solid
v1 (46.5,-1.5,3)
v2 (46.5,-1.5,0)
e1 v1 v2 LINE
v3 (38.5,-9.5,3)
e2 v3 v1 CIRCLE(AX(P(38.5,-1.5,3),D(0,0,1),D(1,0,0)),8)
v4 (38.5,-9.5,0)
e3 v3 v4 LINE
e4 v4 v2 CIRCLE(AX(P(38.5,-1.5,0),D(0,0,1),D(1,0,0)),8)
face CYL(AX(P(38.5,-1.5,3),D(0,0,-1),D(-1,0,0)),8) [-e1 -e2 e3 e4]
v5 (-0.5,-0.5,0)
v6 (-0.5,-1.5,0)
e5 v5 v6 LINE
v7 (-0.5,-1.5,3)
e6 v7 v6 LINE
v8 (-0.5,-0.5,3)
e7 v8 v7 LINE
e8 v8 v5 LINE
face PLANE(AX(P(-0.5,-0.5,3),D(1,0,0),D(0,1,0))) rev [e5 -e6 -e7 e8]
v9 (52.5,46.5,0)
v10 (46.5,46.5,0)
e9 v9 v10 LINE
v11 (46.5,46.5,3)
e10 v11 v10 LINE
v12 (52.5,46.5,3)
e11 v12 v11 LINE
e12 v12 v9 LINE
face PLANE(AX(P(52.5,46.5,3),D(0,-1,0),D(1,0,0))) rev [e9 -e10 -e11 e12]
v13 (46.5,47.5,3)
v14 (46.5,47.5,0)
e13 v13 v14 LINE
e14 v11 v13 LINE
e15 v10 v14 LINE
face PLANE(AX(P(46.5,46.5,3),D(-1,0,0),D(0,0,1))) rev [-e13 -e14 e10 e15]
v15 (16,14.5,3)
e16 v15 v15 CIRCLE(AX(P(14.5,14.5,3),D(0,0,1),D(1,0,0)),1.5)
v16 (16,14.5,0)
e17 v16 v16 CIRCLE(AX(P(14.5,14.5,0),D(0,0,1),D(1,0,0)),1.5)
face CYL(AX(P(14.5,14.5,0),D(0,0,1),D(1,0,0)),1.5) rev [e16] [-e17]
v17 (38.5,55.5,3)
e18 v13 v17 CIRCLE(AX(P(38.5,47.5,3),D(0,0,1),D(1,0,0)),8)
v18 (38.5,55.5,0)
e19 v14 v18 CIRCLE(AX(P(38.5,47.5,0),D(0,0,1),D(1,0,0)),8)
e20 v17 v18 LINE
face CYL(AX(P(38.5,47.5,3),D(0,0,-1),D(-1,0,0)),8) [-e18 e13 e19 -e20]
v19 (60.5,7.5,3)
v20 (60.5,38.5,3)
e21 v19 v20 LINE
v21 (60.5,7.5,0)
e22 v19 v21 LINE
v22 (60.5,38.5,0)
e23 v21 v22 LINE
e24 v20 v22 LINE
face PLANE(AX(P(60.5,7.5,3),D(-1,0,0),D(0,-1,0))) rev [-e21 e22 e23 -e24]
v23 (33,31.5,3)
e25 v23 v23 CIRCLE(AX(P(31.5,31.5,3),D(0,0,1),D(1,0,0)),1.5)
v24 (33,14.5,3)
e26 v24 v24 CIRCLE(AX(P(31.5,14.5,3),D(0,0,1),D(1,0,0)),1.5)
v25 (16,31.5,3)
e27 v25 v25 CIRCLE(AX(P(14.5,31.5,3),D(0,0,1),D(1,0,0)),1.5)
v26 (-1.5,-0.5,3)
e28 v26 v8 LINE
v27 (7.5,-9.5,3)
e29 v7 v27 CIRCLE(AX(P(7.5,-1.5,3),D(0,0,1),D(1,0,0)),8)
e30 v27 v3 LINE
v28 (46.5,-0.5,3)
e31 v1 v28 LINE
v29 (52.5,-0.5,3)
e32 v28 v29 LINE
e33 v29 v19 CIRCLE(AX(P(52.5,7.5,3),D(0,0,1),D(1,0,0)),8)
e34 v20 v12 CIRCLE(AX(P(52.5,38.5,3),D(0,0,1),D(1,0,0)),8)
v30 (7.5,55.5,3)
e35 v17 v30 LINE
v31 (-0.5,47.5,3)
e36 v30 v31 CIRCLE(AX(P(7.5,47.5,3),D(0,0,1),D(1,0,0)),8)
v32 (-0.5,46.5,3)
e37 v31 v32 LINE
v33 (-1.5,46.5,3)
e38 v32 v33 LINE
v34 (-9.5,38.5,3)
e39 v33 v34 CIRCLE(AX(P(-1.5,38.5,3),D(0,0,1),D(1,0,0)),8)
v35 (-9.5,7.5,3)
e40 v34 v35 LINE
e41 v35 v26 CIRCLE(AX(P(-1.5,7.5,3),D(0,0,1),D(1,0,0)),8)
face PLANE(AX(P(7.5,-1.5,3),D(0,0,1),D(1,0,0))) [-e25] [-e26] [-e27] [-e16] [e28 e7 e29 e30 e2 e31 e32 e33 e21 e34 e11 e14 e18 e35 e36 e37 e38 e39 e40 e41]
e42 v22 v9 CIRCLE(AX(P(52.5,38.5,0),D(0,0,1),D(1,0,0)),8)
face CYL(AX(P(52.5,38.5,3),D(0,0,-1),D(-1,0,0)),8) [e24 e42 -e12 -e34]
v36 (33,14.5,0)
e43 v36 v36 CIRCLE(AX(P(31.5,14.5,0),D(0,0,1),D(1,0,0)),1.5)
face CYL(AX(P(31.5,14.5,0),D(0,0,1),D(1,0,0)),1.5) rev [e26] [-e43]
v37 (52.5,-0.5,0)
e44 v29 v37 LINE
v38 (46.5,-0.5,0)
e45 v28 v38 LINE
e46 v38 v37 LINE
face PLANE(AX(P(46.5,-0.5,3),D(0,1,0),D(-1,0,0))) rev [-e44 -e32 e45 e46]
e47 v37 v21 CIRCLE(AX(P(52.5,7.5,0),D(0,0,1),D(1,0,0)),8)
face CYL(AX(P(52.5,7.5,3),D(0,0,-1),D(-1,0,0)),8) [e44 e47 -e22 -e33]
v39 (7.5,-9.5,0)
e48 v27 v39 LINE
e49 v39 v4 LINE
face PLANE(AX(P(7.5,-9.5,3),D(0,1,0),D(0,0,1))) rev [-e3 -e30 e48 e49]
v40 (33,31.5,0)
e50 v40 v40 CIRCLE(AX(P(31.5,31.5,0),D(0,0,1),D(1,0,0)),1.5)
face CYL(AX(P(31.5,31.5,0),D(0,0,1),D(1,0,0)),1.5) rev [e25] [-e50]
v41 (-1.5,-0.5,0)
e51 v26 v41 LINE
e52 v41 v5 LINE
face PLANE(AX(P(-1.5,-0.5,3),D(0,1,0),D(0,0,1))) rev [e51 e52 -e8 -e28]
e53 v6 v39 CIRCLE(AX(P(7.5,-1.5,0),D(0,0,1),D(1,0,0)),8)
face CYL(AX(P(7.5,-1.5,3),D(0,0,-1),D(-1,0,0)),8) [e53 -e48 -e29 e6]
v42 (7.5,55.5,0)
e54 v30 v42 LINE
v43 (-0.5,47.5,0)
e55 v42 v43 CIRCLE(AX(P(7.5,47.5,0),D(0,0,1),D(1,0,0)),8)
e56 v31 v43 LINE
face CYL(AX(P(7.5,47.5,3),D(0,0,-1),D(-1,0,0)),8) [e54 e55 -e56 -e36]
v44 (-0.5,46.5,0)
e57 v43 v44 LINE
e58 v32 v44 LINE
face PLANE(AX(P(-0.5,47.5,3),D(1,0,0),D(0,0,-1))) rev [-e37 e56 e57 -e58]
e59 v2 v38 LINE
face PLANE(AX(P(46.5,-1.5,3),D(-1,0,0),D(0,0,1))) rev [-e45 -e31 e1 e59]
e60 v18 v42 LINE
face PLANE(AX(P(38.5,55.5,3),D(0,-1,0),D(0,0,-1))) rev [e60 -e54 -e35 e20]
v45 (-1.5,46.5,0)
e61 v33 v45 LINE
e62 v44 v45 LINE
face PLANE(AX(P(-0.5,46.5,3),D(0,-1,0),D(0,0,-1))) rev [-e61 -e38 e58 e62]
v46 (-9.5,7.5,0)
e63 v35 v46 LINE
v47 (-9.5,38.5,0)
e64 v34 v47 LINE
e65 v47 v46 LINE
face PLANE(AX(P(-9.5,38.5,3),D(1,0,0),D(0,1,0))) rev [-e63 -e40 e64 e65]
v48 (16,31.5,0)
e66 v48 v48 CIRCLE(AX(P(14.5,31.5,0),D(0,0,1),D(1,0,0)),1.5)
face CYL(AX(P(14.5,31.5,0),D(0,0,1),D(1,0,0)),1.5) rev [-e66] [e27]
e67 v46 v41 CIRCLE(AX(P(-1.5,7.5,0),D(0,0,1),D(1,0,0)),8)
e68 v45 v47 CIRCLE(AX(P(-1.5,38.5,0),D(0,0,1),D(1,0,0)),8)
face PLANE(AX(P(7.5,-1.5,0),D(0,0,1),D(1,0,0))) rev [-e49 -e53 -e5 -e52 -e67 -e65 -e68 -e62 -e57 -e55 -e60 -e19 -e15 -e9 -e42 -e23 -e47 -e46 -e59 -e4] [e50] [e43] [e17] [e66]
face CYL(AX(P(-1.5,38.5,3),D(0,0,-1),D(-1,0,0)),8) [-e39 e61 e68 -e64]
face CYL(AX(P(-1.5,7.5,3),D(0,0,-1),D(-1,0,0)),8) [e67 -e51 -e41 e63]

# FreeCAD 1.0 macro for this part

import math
import FreeCAD as App
import Part
import Sketcher
from FreeCAD import Vector

doc = App.newDocument("Part")
body = doc.addObject("PartDesign::Body", "Body")

sketch1 = body.newObject("Sketcher::SketchObject", "Sketch")
sketch1.AttachmentSupport = (doc.getObject("XY_Plane"), [""])
sketch1.MapMode = "FlatFace"
sketch1.addGeometry(Part.LineSegment(Vector(7.5, -9.5, 0), Vector(38.5, -9.5, 0)), False)
sketch1.addGeometry(Part.ArcOfCircle(Part.Circle(Vector(38.5, -1.5, 0), Vector(0, 0, 1), 8), math.radians(-90), math.radians(0)), False)
sketch1.addGeometry(Part.LineSegment(Vector(46.5, -1.5, 0), Vector(46.5, -0.5, 0)), False)
sketch1.addGeometry(Part.LineSegment(Vector(46.5, -0.5, 0), Vector(52.5, -0.5, 0)), False)
sketch1.addGeometry(Part.ArcOfCircle(Part.Circle(Vector(52.5, 7.5, 0), Vector(0, 0, 1), 8), math.radians(-90), math.radians(0)), False)
sketch1.addGeometry(Part.LineSegment(Vector(60.5, 7.5, 0), Vector(60.5, 38.5, 0)), False)
sketch1.addGeometry(Part.ArcOfCircle(Part.Circle(Vector(52.5, 38.5, 0), Vector(0, 0, 1), 8), math.radians(0), math.radians(90)), False)
sketch1.addGeometry(Part.LineSegment(Vector(52.5, 46.5, 0), Vector(46.5, 46.5, 0)), False)
sketch1.addGeometry(Part.LineSegment(Vector(46.5, 46.5, 0), Vector(46.5, 47.5, 0)), False)
sketch1.addGeometry(Part.ArcOfCircle(Part.Circle(Vector(38.5, 47.5, 0), Vector(0, 0, 1), 8), math.radians(0), math.radians(90)), False)
sketch1.addGeometry(Part.LineSegment(Vector(38.5, 55.5, 0), Vector(7.5, 55.5, 0)), False)
sketch1.addGeometry(Part.ArcOfCircle(Part.Circle(Vector(7.5, 47.5, 0), Vector(0, 0, 1), 8), math.radians(90), math.radians(180)), False)
sketch1.addGeometry(Part.LineSegment(Vector(-0.5, 47.5, 0), Vector(-0.5, 46.5, 0)), False)
sketch1.addGeometry(Part.LineSegment(Vector(-0.5, 46.5, 0), Vector(-1.5, 46.5, 0)), False)
sketch1.addGeometry(Part.ArcOfCircle(Part.Circle(Vector(-1.5, 38.5, 0), Vector(0, 0, 1), 8), math.radians(90), math.radians(180)), False)
sketch1.addGeometry(Part.LineSegment(Vector(-9.5, 38.5, 0), Vector(-9.5, 7.5, 0)), False)
sketch1.addGeometry(Part.ArcOfCircle(Part.Circle(Vector(-1.5, 7.5, 0), Vector(0, 0, 1), 8), math.radians(-180), math.radians(-90)), False)
sketch1.addGeometry(Part.LineSegment(Vector(-1.5, -0.5, 0), Vector(-0.5, -0.5, 0)), False)
sketch1.addGeometry(Part.LineSegment(Vector(-0.5, -0.5, 0), Vector(-0.5, -1.5, 0)), False)
sketch1.addGeometry(Part.ArcOfCircle(Part.Circle(Vector(7.5, -1.5, 0), Vector(0, 0, 1), 8), math.radians(-180), math.radians(-90)), False)
sketch1.addConstraint(Sketcher.Constraint("Tangent", 0, 2, 1, 1))
sketch1.addConstraint(Sketcher.Constraint("Tangent", 1, 2, 2, 1))
sketch1.addConstraint(Sketcher.Constraint("Coincident", 2, 2, 3, 1))
sketch1.addConstraint(Sketcher.Constraint("Tangent", 3, 2, 4, 1))
sketch1.addConstraint(Sketcher.Constraint("Tangent", 4, 2, 5, 1))
sketch1.addConstraint(Sketcher.Constraint("Tangent", 5, 2, 6, 1))
sketch1.addConstraint(Sketcher.Constraint("Tangent", 6, 2, 7, 1))
sketch1.addConstraint(Sketcher.Constraint("Coincident", 7, 2, 8, 1))
sketch1.addConstraint(Sketcher.Constraint("Tangent", 8, 2, 9, 1))
sketch1.addConstraint(Sketcher.Constraint("Tangent", 9, 2, 10, 1))
sketch1.addConstraint(Sketcher.Constraint("Tangent", 10, 2, 11, 1))
sketch1.addConstraint(Sketcher.Constraint("Tangent", 11, 2, 12, 1))
sketch1.addConstraint(Sketcher.Constraint("Coincident", 12, 2, 13, 1))
sketch1.addConstraint(Sketcher.Constraint("Tangent", 13, 2, 14, 1))
sketch1.addConstraint(Sketcher.Constraint("Tangent", 14, 2, 15, 1))
sketch1.addConstraint(Sketcher.Constraint("Tangent", 15, 2, 16, 1))
sketch1.addConstraint(Sketcher.Constraint("Tangent", 16, 2, 17, 1))
sketch1.addConstraint(Sketcher.Constraint("Coincident", 17, 2, 18, 1))
sketch1.addConstraint(Sketcher.Constraint("Tangent", 18, 2, 19, 1))
sketch1.addConstraint(Sketcher.Constraint("Tangent", 19, 2, 0, 1))
sketch1.addConstraint(Sketcher.Constraint("Horizontal", 0))
sketch1.addConstraint(Sketcher.Constraint("Vertical", 2))
sketch1.addConstraint(Sketcher.Constraint("Horizontal", 3))
sketch1.addConstraint(Sketcher.Constraint("Vertical", 5))
sketch1.addConstraint(Sketcher.Constraint("Horizontal", 7))
sketch1.addConstraint(Sketcher.Constraint("Vertical", 8))
sketch1.addConstraint(Sketcher.Constraint("Horizontal", 10))
sketch1.addConstraint(Sketcher.Constraint("Vertical", 12))
sketch1.addConstraint(Sketcher.Constraint("Horizontal", 13))
sketch1.addConstraint(Sketcher.Constraint("Vertical", 15))
sketch1.addConstraint(Sketcher.Constraint("Horizontal", 17))
sketch1.addConstraint(Sketcher.Constraint("Vertical", 18))
sketch1.addConstraint(Sketcher.Constraint("Equal", 1, 4))
sketch1.addConstraint(Sketcher.Constraint("Equal", 4, 6))
sketch1.addConstraint(Sketcher.Constraint("Equal", 6, 9))
sketch1.addConstraint(Sketcher.Constraint("Equal", 9, 11))
sketch1.addConstraint(Sketcher.Constraint("Equal", 11, 14))
sketch1.addConstraint(Sketcher.Constraint("Equal", 14, 16))
sketch1.addConstraint(Sketcher.Constraint("Equal", 16, 19))
sketch1.addConstraint(Sketcher.Constraint("Horizontal", 6, 3, 14, 3))
sketch1.addConstraint(Sketcher.Constraint("Horizontal", 4, 3, 16, 3))
sketch1.addConstraint(Sketcher.Constraint("Vertical", 1, 3, 9, 3))
sketch1.addConstraint(Sketcher.Constraint("Vertical", 11, 3, 19, 3))
sketch1.addConstraint(Sketcher.Constraint("Equal", 17, 2))
sketch1.addConstraint(Sketcher.Constraint("Equal", 10, 5))
sketch1.addConstraint(Sketcher.Constraint("Equal", 2, 8))
sketch1.addConstraint(Sketcher.Constraint("Radius", 1, 8.0))
sketch1.addConstraint(Sketcher.Constraint("DistanceX", 0, 1, 0, 2, 31.0))
sketch1.addConstraint(Sketcher.Constraint("DistanceX", 3, 1, 3, 2, 6.0))
sketch1.addConstraint(Sketcher.Constraint("DistanceX", 13, 2, 13, 1, 1.0))
sketch1.addConstraint(Sketcher.Constraint("DistanceX", -1, 1, 1, 3, 38.5))
sketch1.addConstraint(Sketcher.Constraint("DistanceY", 1, 3, -1, 1, 1.5))
pad1 = body.newObject("PartDesign::Pad", "Pad")
pad1.Profile = sketch1
pad1.Length = 3

sketch2 = body.newObject("Sketcher::SketchObject", "Sketch001")
sketch2.AttachmentSupport = (doc.getObject("XY_Plane"), [""])
sketch2.MapMode = "FlatFace"
sketch2.AttachmentOffset = App.Placement(Vector(0, 0, 3), App.Rotation())
sketch2.addGeometry(Part.Circle(Vector(31.5, 31.5, 0), Vector(0, 0, 1), 1.5), False)
sketch2.addGeometry(Part.Circle(Vector(14.5, 31.5, 0), Vector(0, 0, 1), 1.5), False)
sketch2.addGeometry(Part.Circle(Vector(14.5, 14.5, 0), Vector(0, 0, 1), 1.5), False)
sketch2.addGeometry(Part.Circle(Vector(31.5, 14.5, 0), Vector(0, 0, 1), 1.5), False)
sketch2.addConstraint(Sketcher.Constraint("Equal", 0, 1))
sketch2.addConstraint(Sketcher.Constraint("Equal", 1, 2))
sketch2.addConstraint(Sketcher.Constraint("Equal", 2, 3))
sketch2.addConstraint(Sketcher.Constraint("Horizontal", 0, 3, 1, 3))
sketch2.addConstraint(Sketcher.Constraint("Horizontal", 2, 3, 3, 3))
sketch2.addConstraint(Sketcher.Constraint("Vertical", 1, 3, 2, 3))
sketch2.addConstraint(Sketcher.Constraint("Vertical", 0, 3, 3, 3))
sketch2.addConstraint(Sketcher.Constraint("Diameter", 0, 3.0))
sketch2.addConstraint(Sketcher.Constraint("DistanceX", 1, 3, 0, 3, 17.0))
sketch2.addConstraint(Sketcher.Constraint("DistanceY", 2, 3, 1, 3, 17.0))
sketch2.addConstraint(Sketcher.Constraint("DistanceX", -1, 1, 0, 3, 31.5))
sketch2.addConstraint(Sketcher.Constraint("DistanceY", -1, 1, 0, 3, 31.5))
pocket1 = body.newObject("PartDesign::Pocket", "Pocket")
pocket1.Profile = sketch2
pocket1.Type = "ThroughAll"

doc.recompute()
